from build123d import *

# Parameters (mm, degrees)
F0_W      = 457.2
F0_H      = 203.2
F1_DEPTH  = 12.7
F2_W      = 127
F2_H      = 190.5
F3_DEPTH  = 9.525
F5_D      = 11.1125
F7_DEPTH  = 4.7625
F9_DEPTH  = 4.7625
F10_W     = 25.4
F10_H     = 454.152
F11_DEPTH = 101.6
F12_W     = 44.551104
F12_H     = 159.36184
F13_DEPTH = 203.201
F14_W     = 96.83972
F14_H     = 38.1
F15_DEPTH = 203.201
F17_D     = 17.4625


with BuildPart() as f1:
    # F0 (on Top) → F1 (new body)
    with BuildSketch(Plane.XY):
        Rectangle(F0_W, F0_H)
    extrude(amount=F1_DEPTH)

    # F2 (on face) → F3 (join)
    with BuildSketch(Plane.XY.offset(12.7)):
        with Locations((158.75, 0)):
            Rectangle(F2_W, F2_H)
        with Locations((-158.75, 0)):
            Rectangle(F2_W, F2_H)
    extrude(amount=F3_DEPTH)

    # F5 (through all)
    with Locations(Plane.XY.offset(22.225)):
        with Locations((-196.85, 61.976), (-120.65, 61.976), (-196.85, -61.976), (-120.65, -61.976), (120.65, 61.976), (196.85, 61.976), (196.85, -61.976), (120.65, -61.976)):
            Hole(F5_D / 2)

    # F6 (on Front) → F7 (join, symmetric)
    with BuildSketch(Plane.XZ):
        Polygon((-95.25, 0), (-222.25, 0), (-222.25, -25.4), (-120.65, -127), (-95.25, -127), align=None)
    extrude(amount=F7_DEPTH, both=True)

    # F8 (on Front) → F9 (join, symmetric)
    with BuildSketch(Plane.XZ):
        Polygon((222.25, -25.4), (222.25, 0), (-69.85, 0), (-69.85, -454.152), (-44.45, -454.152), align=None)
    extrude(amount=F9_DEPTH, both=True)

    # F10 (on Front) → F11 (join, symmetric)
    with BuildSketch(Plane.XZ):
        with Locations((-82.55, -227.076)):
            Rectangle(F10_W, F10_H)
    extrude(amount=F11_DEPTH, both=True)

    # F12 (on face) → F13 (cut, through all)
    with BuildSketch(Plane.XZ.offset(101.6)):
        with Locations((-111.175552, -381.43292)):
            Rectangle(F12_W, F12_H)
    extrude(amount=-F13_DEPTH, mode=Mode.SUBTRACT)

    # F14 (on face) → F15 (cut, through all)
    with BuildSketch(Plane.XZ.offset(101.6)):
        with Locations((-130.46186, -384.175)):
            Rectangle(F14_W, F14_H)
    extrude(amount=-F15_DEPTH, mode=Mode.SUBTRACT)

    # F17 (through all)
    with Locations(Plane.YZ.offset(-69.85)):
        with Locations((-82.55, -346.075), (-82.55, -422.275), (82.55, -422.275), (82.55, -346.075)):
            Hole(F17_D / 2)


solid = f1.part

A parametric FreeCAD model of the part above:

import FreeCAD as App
import Part
import Sketcher
Q = App.Units.Quantity

doc = App.newDocument("Part")
body = doc.addObject("PartDesign::Body", "Body")

# Sketch on XY plane
sketch1 = body.newObject("Sketcher::SketchObject", "Sketch")
sketch1.AttachmentSupport = (doc.getObject("XY_Plane"), [""])
sketch1.MapMode = "FlatFace"
sketch1.addGeometry([
    Part.LineSegment(App.Vector(-229, 102, 0), App.Vector(-229, -102, 0)),
    Part.LineSegment(App.Vector(-229, -102, 0), App.Vector(229, -102, 0)),
    Part.LineSegment(App.Vector(229, -102, 0), App.Vector(229, 102, 0)),
    Part.LineSegment(App.Vector(229, 102, 0), App.Vector(-229, 102, 0)),
], False)
sketch1.addConstraint([
    Sketcher.Constraint("Coincident", 0, 2, 1, 1),
    Sketcher.Constraint("Coincident", 1, 2, 2, 1),
    Sketcher.Constraint("Coincident", 2, 2, 3, 1),
    Sketcher.Constraint("Coincident", 3, 2, 0, 1),
    Sketcher.Constraint("Vertical", 0),
    Sketcher.Constraint("Horizontal", 1),
    Sketcher.Constraint("Vertical", 2),
    Sketcher.Constraint("Horizontal", 3),
    Sketcher.Constraint("Symmetric", 0, 2, 2, 2, -1, 1),
    Sketcher.Constraint("DistanceX", 1, 1, 1, 2, Q("18 in")),
    Sketcher.Constraint("DistanceY", 0, 2, 0, 1, Q("8 in")),
])
pad1 = body.newObject("PartDesign::Pad", "Pad")
pad1.Profile = sketch1
pad1.Length = Q("0.5 in")

# Sketch on XY plane
sketch2 = body.newObject("Sketcher::SketchObject", "Sketch001")
sketch2.AttachmentSupport = (doc.getObject("XY_Plane"), [""])
sketch2.MapMode = "FlatFace"
sketch2.AttachmentOffset = App.Placement(App.Vector(0, 0, 0.5 * 25.4), App.Rotation())
sketch2.addGeometry([
    Part.LineSegment(App.Vector(95, 95, 0), App.Vector(95, -95, 0)),  # 0
    Part.LineSegment(App.Vector(95, -95, 0), App.Vector(222, -95, 0)),  # 1
    Part.LineSegment(App.Vector(222, -95, 0), App.Vector(222, 95, 0)),  # 2
    Part.LineSegment(App.Vector(222, 95, 0), App.Vector(95, 95, 0)),  # 3
    Part.LineSegment(App.Vector(-222, 95, 0), App.Vector(-222, -95, 0)),  # 4
    Part.LineSegment(App.Vector(-222, -95, 0), App.Vector(-95, -95, 0)),  # 5
    Part.LineSegment(App.Vector(-95, -95, 0), App.Vector(-95, 95, 0)),  # 6
    Part.LineSegment(App.Vector(-95, 95, 0), App.Vector(-222, 95, 0)),  # 7
], False)
sketch2.addConstraint([
    Sketcher.Constraint("Coincident", 0, 2, 1, 1),
    Sketcher.Constraint("Coincident", 1, 2, 2, 1),
    Sketcher.Constraint("Coincident", 2, 2, 3, 1),
    Sketcher.Constraint("Coincident", 3, 2, 0, 1),
    Sketcher.Constraint("Coincident", 4, 2, 5, 1),
    Sketcher.Constraint("Coincident", 5, 2, 6, 1),
    Sketcher.Constraint("Coincident", 6, 2, 7, 1),
    Sketcher.Constraint("Coincident", 7, 2, 4, 1),
    Sketcher.Constraint("Vertical", 0),
    Sketcher.Constraint("Horizontal", 1),
    Sketcher.Constraint("Vertical", 2),
    Sketcher.Constraint("Horizontal", 3),
    Sketcher.Constraint("Vertical", 4),
    Sketcher.Constraint("Horizontal", 5),
    Sketcher.Constraint("Vertical", 6),
    Sketcher.Constraint("Horizontal", 7),
    Sketcher.Constraint("Symmetric", 2, 2, 4, 2, -1, 1),
    Sketcher.Constraint("Symmetric", 0, 2, 6, 2, -1, 1),
    Sketcher.Constraint("Horizontal", 1, 2, 4, 2),
    Sketcher.Constraint("DistanceX", 1, 1, 1, 2, Q("5 in")),
    Sketcher.Constraint("DistanceY", 0, 2, 0, 1, Q("7.5 in")),
    Sketcher.Constraint("DistanceX", 4, 2, 0, 2, Q("12.5 in")),
])
pad2 = body.newObject("PartDesign::Pad", "Pad001")
pad2.Profile = sketch2
pad2.Length = Q("0.375 in")

# Sketch on XY plane
sketch3 = body.newObject("Sketcher::SketchObject", "Sketch002")
sketch3.AttachmentSupport = (doc.getObject("XY_Plane"), [""])
sketch3.MapMode = "FlatFace"
sketch3.AttachmentOffset = App.Placement(App.Vector(0, 0, 0.875 * 25.4), App.Rotation())
sketch3.addGeometry([
    Part.Circle(App.Vector(-197, 62, 0), App.Vector(0, 0, 1), 6),  # 0
    Part.Circle(App.Vector(-121, 62, 0), App.Vector(0, 0, 1), 6),  # 1
    Part.Circle(App.Vector(-197, -62, 0), App.Vector(0, 0, 1), 6),  # 2
    Part.Circle(App.Vector(-121, -62, 0), App.Vector(0, 0, 1), 6),  # 3
    Part.Circle(App.Vector(121, 62, 0), App.Vector(0, 0, 1), 6),  # 4
    Part.Circle(App.Vector(197, 62, 0), App.Vector(0, 0, 1), 6),  # 5
    Part.Circle(App.Vector(197, -62, 0), App.Vector(0, 0, 1), 6),  # 6
    Part.Circle(App.Vector(121, -62, 0), App.Vector(0, 0, 1), 6),  # 7
], False)
sketch3.addConstraint([
    Sketcher.Constraint("Equal", 0, 1),
    Sketcher.Constraint("Equal", 1, 2),
    Sketcher.Constraint("Equal", 2, 3),
    Sketcher.Constraint("Equal", 3, 4),
    Sketcher.Constraint("Equal", 4, 5),
    Sketcher.Constraint("Equal", 5, 6),
    Sketcher.Constraint("Equal", 6, 7),
    Sketcher.Constraint("Symmetric", 3, 3, 4, 3, -1, 1),
    Sketcher.Constraint("Symmetric", 2, 3, 5, 3, -1, 1),
    Sketcher.Constraint("Symmetric", 0, 3, 6, 3, -1, 1),
    Sketcher.Constraint("Symmetric", 1, 3, 7, 3, -1, 1),
    Sketcher.Constraint("Symmetric", 1, 3, 4, 3, -2),
    Sketcher.Constraint("Symmetric", 0, 3, 5, 3, -2),
    Sketcher.Constraint("Horizontal", 0, 3, 1, 3),
    Sketcher.Constraint("Diameter", 0, Q("0.4375 in")),
    Sketcher.Constraint("DistanceX", 0, 3, 1, 3, Q("3 in")),
    Sketcher.Constraint("DistanceX", 1, 3, 4, 3, Q("9.5 in")),
    Sketcher.Constraint("DistanceY", -1, 1, 0, 3, Q("2.44 in")),
])
doc.recompute()
hole = body.newObject("PartDesign::Hole", "Hole")
hole.Profile = sketch3
hole.ThreadType = "None"
hole.Diameter = Q("0.4375 in")
hole.DepthType = "ThroughAll"

# Sketch on XZ plane
sketch4 = body.newObject("Sketcher::SketchObject", "Sketch003")
sketch4.AttachmentSupport = (doc.getObject("XZ_Plane"), [""])
sketch4.MapMode = "FlatFace"
sketch4.addGeometry([
    Part.LineSegment(App.Vector(-95, 0, 0), App.Vector(-222, 0, 0)),  # 0
    Part.LineSegment(App.Vector(-222, 0, 0), App.Vector(-222, -25, 0)),  # 1
    Part.LineSegment(App.Vector(-222, -25, 0), App.Vector(-121, -127, 0)),  # 2
    Part.LineSegment(App.Vector(-121, -127, 0), App.Vector(-95, -127, 0)),  # 3
    Part.LineSegment(App.Vector(-95, -127, 0), App.Vector(-95, 0, 0)),  # 4
], False)
sketch4.addConstraint([
    Sketcher.Constraint("Coincident", 0, 2, 1, 1),
    Sketcher.Constraint("Coincident", 1, 2, 2, 1),
    Sketcher.Constraint("Coincident", 2, 2, 3, 1),
    Sketcher.Constraint("Coincident", 3, 2, 4, 1),
    Sketcher.Constraint("Coincident", 4, 2, 0, 1),
    Sketcher.Constraint("Horizontal", 0),
    Sketcher.Constraint("Vertical", 1),
    Sketcher.Constraint("Horizontal", 3),
    Sketcher.Constraint("Vertical", 4),
    Sketcher.Constraint("PointOnObject", 0, 2, -1),
    Sketcher.Constraint("Equal", 3, 1),
    Sketcher.Constraint("Equal", 0, 4),
    Sketcher.Constraint("DistanceX", 0, 2, 0, 1, Q("5 in")),
    Sketcher.Constraint("DistanceX", 3, 1, 3, 2, Q("1 in")),
    Sketcher.Constraint("DistanceX", 0, 2, -1, 1, Q("8.75 in")),
])
pad3 = body.newObject("PartDesign::Pad", "Pad002")
pad3.Profile = sketch4
pad3.Length = Q("0.375 in")
pad3.Midplane = True

# Sketch on XZ plane
sketch5 = body.newObject("Sketcher::SketchObject", "Sketch004")
sketch5.AttachmentSupport = (doc.getObject("XZ_Plane"), [""])
sketch5.MapMode = "FlatFace"
sketch5.addGeometry([
    Part.LineSegment(App.Vector(222, -25, 0), App.Vector(222, 0, 0)),  # 0
    Part.LineSegment(App.Vector(222, 0, 0), App.Vector(-70, 0, 0)),  # 1
    Part.LineSegment(App.Vector(-70, 0, 0), App.Vector(-70, -454, 0)),  # 2
    Part.LineSegment(App.Vector(-70, -454, 0), App.Vector(-44, -454, 0)),  # 3
    Part.LineSegment(App.Vector(-44, -454, 0), App.Vector(222, -25, 0)),  # 4
], False)
sketch5.addConstraint([
    Sketcher.Constraint("Coincident", 0, 2, 1, 1),
    Sketcher.Constraint("Coincident", 1, 2, 2, 1),
    Sketcher.Constraint("Coincident", 2, 2, 3, 1),
    Sketcher.Constraint("Coincident", 3, 2, 4, 1),
    Sketcher.Constraint("Coincident", 4, 2, 0, 1),
    Sketcher.Constraint("Vertical", 0),
    Sketcher.Constraint("Horizontal", 1),
    Sketcher.Constraint("Vertical", 2),
    Sketcher.Constraint("Horizontal", 3),
    Sketcher.Constraint("PointOnObject", 0, 2, -1),
    Sketcher.Constraint("Equal", 3, 0),
    Sketcher.Constraint("DistanceX", 3, 1, 3, 2, Q("1 in")),
    Sketcher.Constraint("DistanceX", 1, 2, 1, 1, Q("11.5 in")),
    Sketcher.Constraint("DistanceY", 2, 2, 2, 1, Q("17.88 in")),
    Sketcher.Constraint("DistanceX", -1, 1, 0, 2, Q("8.75 in")),
])
pad4 = body.newObject("PartDesign::Pad", "Pad003")
pad4.Profile = sketch5
pad4.Length = Q("0.375 in")
pad4.Midplane = True

# Sketch on XZ plane
sketch6 = body.newObject("Sketcher::SketchObject", "Sketch005")
sketch6.AttachmentSupport = (doc.getObject("XZ_Plane"), [""])
sketch6.MapMode = "FlatFace"
sketch6.addGeometry([
    Part.LineSegment(App.Vector(-95, 0, 0), App.Vector(-95, -454, 0)),
    Part.LineSegment(App.Vector(-95, -454, 0), App.Vector(-70, -454, 0)),
    Part.LineSegment(App.Vector(-70, -454, 0), App.Vector(-70, 0, 0)),
    Part.LineSegment(App.Vector(-70, 0, 0), App.Vector(-95, 0, 0)),
], False)
sketch6.addConstraint([
    Sketcher.Constraint("Coincident", 0, 2, 1, 1),
    Sketcher.Constraint("Coincident", 1, 2, 2, 1),
    Sketcher.Constraint("Coincident", 2, 2, 3, 1),
    Sketcher.Constraint("Coincident", 3, 2, 0, 1),
    Sketcher.Constraint("Vertical", 0),
    Sketcher.Constraint("Horizontal", 1),
    Sketcher.Constraint("Vertical", 2),
    Sketcher.Constraint("Horizontal", 3),
    Sketcher.Constraint("PointOnObject", 2, 2, -1),
    Sketcher.Constraint("DistanceX", 1, 1, 1, 2, Q("1 in")),
    Sketcher.Constraint("DistanceY", 0, 2, 0, 1, Q("17.88 in")),
    Sketcher.Constraint("DistanceX", 0, 2, -1, 1, Q("3.75 in")),
])
pad5 = body.newObject("PartDesign::Pad", "Pad004")
pad5.Profile = sketch6
pad5.Length = Q("8 in")
pad5.Midplane = True

# Sketch on XZ plane
sketch7 = body.newObject("Sketcher::SketchObject", "Sketch006")
sketch7.AttachmentSupport = (doc.getObject("XZ_Plane"), [""])
sketch7.MapMode = "FlatFace"
sketch7.AttachmentOffset = App.Placement(App.Vector(0, 0, 4 * 25.4), App.Rotation())
sketch7.addGeometry([
    Part.LineSegment(App.Vector(-133, -302, 0), App.Vector(-133, -461, 0)),
    Part.LineSegment(App.Vector(-133, -461, 0), App.Vector(-89, -461, 0)),
    Part.LineSegment(App.Vector(-89, -461, 0), App.Vector(-89, -302, 0)),
    Part.LineSegment(App.Vector(-89, -302, 0), App.Vector(-133, -302, 0)),
], False)
sketch7.addConstraint([
    Sketcher.Constraint("Coincident", 0, 2, 1, 1),
    Sketcher.Constraint("Coincident", 1, 2, 2, 1),
    Sketcher.Constraint("Coincident", 2, 2, 3, 1),
    Sketcher.Constraint("Coincident", 3, 2, 0, 1),
    Sketcher.Constraint("Vertical", 0),
    Sketcher.Constraint("Horizontal", 1),
    Sketcher.Constraint("Vertical", 2),
    Sketcher.Constraint("Horizontal", 3),
    Sketcher.Constraint("DistanceX", 1, 2, -1, 1, Q("3.5 in")),
    Sketcher.Constraint("DistanceY", 2, 2, -1, 1, Q("11.88 in")),
    Sketcher.Constraint("DistanceY", 0, 2, 0, 1, Q("159.36184 mm")),
    Sketcher.Constraint("DistanceX", 1, 1, 1, 2, Q("44.551104 mm")),
])
pocket1 = body.newObject("PartDesign::Pocket", "Pocket")
pocket1.Profile = sketch7
pocket1.Type = "ThroughAll"

# Sketch on XZ plane
sketch8 = body.newObject("Sketcher::SketchObject", "Sketch007")
sketch8.AttachmentSupport = (doc.getObject("XZ_Plane"), [""])
sketch8.MapMode = "FlatFace"
sketch8.AttachmentOffset = App.Placement(App.Vector(0, 0, 4 * 25.4), App.Rotation())
sketch8.addGeometry([
    Part.LineSegment(App.Vector(-179, -365, 0), App.Vector(-179, -403, 0)),
    Part.LineSegment(App.Vector(-179, -403, 0), App.Vector(-82, -403, 0)),
    Part.LineSegment(App.Vector(-82, -403, 0), App.Vector(-82, -365, 0)),
    Part.LineSegment(App.Vector(-82, -365, 0), App.Vector(-179, -365, 0)),
], False)
sketch8.addConstraint([
    Sketcher.Constraint("Coincident", 0, 2, 1, 1),
    Sketcher.Constraint("Coincident", 1, 2, 2, 1),
    Sketcher.Constraint("Coincident", 2, 2, 3, 1),
    Sketcher.Constraint("Coincident", 3, 2, 0, 1),
    Sketcher.Constraint("Vertical", 0),
    Sketcher.Constraint("Horizontal", 1),
    Sketcher.Constraint("Vertical", 2),
    Sketcher.Constraint("Horizontal", 3),
    Sketcher.Constraint("DistanceY", 0, 2, 0, 1, Q("1.5 in")),
    Sketcher.Constraint("DistanceX", 1, 2, -1, 1, Q("3.23 in")),
    Sketcher.Constraint("DistanceY", 0, 2, -1, 1, Q("15.875 in")),
    Sketcher.Constraint("DistanceX", 1, 1, 1, 2, Q("96.83972 mm")),
])
pocket2 = body.newObject("PartDesign::Pocket", "Pocket001")
pocket2.Profile = sketch8
pocket2.Type = "ThroughAll"

# Sketch on YZ plane
sketch9 = body.newObject("Sketcher::SketchObject", "Sketch008")
sketch9.AttachmentSupport = (doc.getObject("YZ_Plane"), [""])
sketch9.MapMode = "FlatFace"
sketch9.AttachmentOffset = App.Placement(App.Vector(0, 0, -2.75 * 25.4), App.Rotation())
sketch9.addGeometry([
    Part.Circle(App.Vector(-83, -346, 0), App.Vector(0, 0, 1), 9),
    Part.Circle(App.Vector(-83, -422, 0), App.Vector(0, 0, 1), 9),
    Part.Circle(App.Vector(83, -422, 0), App.Vector(0, 0, 1), 9),
    Part.Circle(App.Vector(83, -346, 0), App.Vector(0, 0, 1), 9),
], False)
sketch9.addConstraint([
    Sketcher.Constraint("Equal", 0, 1),
    Sketcher.Constraint("Equal", 1, 2),
    Sketcher.Constraint("Equal", 2, 3),
    Sketcher.Constraint("Symmetric", 1, 3, 2, 3, -2),
    Sketcher.Constraint("Symmetric", 0, 3, 3, 3, -2),
    Sketcher.Constraint("Vertical", 0, 3, 1, 3),
    Sketcher.Constraint("Diameter", 0, Q("0.6875 in")),
    Sketcher.Constraint("DistanceY", 1, 3, 0, 3, Q("3 in")),
    Sketcher.Constraint("DistanceX", 1, 3, 2, 3, Q("6.5 in")),
    Sketcher.Constraint("DistanceY", 0, 3, -1, 1, Q("13.625 in")),
])
doc.recompute()
hole2 = body.newObject("PartDesign::Hole", "Hole001")
hole2.Profile = sketch9
hole2.ThreadType = "None"
hole2.Diameter = Q("0.6875 in")
hole2.DepthType = "ThroughAll"

doc.recompute()
